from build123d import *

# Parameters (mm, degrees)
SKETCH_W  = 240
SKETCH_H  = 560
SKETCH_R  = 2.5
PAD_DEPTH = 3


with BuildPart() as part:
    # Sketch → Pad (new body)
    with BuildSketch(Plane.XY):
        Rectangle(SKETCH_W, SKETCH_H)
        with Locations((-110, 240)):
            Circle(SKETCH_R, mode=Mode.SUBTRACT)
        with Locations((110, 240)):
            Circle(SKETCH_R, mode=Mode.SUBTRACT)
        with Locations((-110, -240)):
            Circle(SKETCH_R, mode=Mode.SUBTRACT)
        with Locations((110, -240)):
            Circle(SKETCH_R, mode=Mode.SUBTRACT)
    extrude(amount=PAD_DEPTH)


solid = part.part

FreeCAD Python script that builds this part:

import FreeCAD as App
import Part
import Sketcher

V = App.Vector


def add_polygon(sketch, points):
    """Adds a closed chain of lines whose ends are joined by coincident constraints."""
    first, n = sketch.GeometryCount, len(points)
    for a, b in zip(points, points[1:] + points[:1]):
        sketch.addGeometry(Part.LineSegment(App.Vector(*a, 0), App.Vector(*b, 0)), False)
    for i in range(n):
        sketch.addConstraint(Sketcher.Constraint("Coincident", first + i, 2, first + (i + 1) % n, 1))

doc = App.newDocument("Part")
params = doc.addObject("Spreadsheet::Sheet", "Params")
for row, (alias, value) in enumerate([
    ("sketch1_diameter", "5 mm"),
    ("sketch1_width", "240 mm"),
    ("sketch1_height", "560 mm"),
    ("pad1_length", "3 mm"),
], start=1):
    params.set(f"A{row}", alias)
    params.set(f"B{row}", "=" + value)
    params.setAlias(f"B{row}", alias)

body = doc.addObject("PartDesign::Body", "Body")

sketch1 = body.newObject("Sketcher::SketchObject", "Sketch")
sketch1.AttachmentSupport = (doc.getObject("XY_Plane"), [""])
sketch1.MapMode = "FlatFace"
add_polygon(sketch1, [(-120, 280), (-120, -280), (120, -280), (120, 280)])
sketch1.addGeometry(Part.Circle(V(-110, -240, 0), V(0, 0, 1), 2.5), False)
sketch1.addGeometry(Part.Circle(V(110, -240, 0), V(0, 0, 1), 2.5), False)
sketch1.addGeometry(Part.Circle(V(-110, 240, 0), V(0, 0, 1), 2.5), False)
sketch1.addGeometry(Part.Circle(V(110, 240, 0), V(0, 0, 1), 2.5), False)
sketch1.addConstraint([
    Sketcher.Constraint("Vertical", 0),
    Sketcher.Constraint("Horizontal", 1),
    Sketcher.Constraint("Vertical", 2),
    Sketcher.Constraint("Horizontal", 3),
    Sketcher.Constraint("Equal", 4, 5),
    Sketcher.Constraint("Equal", 5, 6),
    Sketcher.Constraint("Equal", 6, 7),
    Sketcher.Constraint("Symmetric", 5, 3, 6, 3, -1, 1),
    Sketcher.Constraint("Symmetric", 4, 3, 7, 3, -1, 1),
    Sketcher.Constraint("Symmetric", 0, 2, 2, 2, -1, 1),
    Sketcher.Constraint("Symmetric", 4, 3, 5, 3, -2),
    Sketcher.Constraint("Diameter", 4, 5.0),
    Sketcher.Constraint("DistanceX", 1, 1, 1, 2, 240.0),
    Sketcher.Constraint("DistanceY", 0, 2, 0, 1, 560.0),
    Sketcher.Constraint("DistanceX", 4, 3, -1, 1, 110.0),
    Sketcher.Constraint("DistanceY", 4, 3, -1, 1, 240.0),
])
sketch1.setExpression("Constraints[15]", "Params.sketch1_diameter")
sketch1.setExpression("Constraints[16]", "Params.sketch1_width")
sketch1.setExpression("Constraints[17]", "Params.sketch1_height")
pad1 = body.newObject("PartDesign::Pad", "Pad")
pad1.Profile = sketch1
pad1.setExpression("Length", "Params.pad1_length")

doc.recompute()
